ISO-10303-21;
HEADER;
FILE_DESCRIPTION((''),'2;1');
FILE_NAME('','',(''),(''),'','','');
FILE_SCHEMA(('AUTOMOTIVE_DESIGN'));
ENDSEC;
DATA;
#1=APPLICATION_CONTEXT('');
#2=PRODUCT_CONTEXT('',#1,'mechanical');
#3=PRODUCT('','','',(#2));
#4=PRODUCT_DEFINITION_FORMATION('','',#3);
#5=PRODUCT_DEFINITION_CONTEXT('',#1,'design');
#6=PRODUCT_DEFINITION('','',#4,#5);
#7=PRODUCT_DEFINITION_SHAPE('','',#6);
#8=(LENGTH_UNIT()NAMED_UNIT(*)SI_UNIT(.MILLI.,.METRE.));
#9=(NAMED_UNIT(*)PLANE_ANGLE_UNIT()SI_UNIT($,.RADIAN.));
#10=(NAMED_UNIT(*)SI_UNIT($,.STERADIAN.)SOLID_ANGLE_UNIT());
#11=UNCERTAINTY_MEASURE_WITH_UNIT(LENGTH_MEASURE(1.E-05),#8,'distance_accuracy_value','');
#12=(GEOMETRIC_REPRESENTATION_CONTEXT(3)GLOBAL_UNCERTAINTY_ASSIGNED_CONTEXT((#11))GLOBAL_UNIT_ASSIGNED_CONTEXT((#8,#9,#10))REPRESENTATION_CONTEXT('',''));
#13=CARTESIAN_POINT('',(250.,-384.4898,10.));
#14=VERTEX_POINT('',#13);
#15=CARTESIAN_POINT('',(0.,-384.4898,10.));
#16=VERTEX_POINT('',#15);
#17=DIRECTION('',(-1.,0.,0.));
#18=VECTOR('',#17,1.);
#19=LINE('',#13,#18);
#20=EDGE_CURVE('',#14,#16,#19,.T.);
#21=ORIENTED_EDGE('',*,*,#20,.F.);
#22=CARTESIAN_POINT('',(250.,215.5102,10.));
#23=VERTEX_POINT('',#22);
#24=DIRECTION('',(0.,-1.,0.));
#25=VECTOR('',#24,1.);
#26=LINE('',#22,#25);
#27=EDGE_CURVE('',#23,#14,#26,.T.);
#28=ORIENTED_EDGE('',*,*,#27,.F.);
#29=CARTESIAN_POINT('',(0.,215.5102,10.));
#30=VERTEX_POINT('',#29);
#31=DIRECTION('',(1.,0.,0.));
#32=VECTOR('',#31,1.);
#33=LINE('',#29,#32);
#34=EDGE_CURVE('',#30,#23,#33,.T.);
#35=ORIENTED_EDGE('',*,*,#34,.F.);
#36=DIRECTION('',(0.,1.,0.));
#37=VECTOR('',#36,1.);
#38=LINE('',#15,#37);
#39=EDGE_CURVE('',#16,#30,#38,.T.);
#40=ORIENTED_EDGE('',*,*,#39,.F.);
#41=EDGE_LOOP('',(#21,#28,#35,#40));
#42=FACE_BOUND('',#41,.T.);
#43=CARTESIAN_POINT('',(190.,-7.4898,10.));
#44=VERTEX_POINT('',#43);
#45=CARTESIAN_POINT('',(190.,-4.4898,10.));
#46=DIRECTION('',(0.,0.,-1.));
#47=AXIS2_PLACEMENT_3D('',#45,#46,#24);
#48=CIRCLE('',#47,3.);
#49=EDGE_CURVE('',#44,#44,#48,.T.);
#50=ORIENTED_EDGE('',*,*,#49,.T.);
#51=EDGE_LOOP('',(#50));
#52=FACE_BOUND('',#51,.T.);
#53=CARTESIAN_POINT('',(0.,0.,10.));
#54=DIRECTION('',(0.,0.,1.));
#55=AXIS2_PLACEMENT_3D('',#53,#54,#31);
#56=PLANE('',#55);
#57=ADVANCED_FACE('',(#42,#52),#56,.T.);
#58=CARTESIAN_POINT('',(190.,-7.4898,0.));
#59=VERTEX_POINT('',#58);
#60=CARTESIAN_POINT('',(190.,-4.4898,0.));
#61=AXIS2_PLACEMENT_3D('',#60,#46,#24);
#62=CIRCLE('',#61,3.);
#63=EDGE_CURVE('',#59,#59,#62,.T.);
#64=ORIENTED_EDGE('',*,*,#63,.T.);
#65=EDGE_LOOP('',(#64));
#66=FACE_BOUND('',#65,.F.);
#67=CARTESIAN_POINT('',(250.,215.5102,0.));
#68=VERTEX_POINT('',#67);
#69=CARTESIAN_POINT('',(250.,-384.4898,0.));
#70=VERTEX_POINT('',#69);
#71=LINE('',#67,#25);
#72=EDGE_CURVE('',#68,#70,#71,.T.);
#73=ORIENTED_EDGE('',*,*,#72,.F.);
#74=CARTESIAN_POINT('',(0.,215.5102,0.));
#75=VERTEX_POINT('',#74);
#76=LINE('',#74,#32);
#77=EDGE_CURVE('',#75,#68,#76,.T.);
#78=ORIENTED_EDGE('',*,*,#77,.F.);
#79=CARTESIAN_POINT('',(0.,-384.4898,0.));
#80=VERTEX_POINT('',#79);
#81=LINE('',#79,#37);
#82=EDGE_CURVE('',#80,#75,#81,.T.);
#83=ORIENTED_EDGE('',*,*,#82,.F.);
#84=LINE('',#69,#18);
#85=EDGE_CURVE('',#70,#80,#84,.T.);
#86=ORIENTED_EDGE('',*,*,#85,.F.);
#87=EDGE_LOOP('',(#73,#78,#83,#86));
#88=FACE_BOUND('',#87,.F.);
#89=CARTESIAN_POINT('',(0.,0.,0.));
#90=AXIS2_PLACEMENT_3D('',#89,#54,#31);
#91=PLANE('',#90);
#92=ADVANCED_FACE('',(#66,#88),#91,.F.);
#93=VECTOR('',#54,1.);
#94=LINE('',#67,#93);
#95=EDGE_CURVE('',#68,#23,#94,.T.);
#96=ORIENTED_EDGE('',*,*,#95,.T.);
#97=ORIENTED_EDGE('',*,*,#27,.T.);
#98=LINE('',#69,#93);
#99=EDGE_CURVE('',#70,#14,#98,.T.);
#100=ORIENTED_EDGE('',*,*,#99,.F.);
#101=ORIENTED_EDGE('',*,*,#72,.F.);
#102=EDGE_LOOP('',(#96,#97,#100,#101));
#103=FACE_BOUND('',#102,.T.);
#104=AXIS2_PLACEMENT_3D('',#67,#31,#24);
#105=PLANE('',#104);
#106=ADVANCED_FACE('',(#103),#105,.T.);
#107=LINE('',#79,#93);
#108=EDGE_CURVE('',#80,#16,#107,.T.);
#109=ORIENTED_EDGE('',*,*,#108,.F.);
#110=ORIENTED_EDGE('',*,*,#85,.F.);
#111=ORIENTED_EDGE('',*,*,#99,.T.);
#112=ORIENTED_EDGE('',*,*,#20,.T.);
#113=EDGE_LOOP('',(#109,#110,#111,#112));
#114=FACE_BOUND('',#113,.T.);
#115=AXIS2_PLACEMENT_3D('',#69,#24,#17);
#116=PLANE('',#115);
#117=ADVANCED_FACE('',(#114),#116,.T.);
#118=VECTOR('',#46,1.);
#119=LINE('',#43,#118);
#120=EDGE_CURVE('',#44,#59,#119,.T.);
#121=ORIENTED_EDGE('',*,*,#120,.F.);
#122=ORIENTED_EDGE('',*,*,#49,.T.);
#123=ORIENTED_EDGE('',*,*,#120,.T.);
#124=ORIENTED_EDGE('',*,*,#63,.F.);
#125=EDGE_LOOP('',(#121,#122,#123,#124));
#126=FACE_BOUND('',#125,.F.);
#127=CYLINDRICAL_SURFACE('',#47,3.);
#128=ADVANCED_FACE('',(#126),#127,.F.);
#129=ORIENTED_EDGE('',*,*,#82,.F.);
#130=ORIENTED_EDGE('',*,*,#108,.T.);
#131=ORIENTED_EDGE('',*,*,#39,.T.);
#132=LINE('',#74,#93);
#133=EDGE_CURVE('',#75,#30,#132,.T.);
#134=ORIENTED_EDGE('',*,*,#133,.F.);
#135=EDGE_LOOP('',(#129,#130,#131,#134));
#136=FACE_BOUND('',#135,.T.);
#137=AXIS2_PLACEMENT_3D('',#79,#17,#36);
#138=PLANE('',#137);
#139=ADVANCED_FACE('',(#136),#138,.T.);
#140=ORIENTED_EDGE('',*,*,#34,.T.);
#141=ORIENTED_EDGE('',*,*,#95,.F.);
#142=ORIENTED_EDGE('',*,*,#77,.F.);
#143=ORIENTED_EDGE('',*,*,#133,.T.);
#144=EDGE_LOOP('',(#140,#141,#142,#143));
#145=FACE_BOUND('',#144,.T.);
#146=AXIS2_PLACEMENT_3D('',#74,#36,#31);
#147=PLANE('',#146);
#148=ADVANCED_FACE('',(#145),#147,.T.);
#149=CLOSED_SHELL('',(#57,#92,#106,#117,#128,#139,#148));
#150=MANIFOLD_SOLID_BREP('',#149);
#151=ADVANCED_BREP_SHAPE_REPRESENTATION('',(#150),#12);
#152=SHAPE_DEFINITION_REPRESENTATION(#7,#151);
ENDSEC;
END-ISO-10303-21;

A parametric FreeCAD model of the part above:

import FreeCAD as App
import Part
import Sketcher


def add_polygon(sketch, points):
    """Adds a closed chain of lines whose ends are joined by coincident constraints."""
    first, n = sketch.GeometryCount, len(points)
    for a, b in zip(points, points[1:] + points[:1]):
        sketch.addGeometry(Part.LineSegment(App.Vector(*a, 0), App.Vector(*b, 0)), False)
    for i in range(n):
        sketch.addConstraint(Sketcher.Constraint("Coincident", first + i, 2, first + (i + 1) % n, 1))

doc = App.newDocument("Part")
body = doc.addObject("PartDesign::Body", "Body")

# Sketch on XY plane
sketch1 = doc.addObject("Sketcher::SketchObject", "Sketch")
body.addObject(sketch1)
sketch1.AttachmentSupport = (doc.XY_Plane, [""])
sketch1.MapMode = "FlatFace"
add_polygon(sketch1, [(250, 215.5102), (0, 215.5102), (0, -384.4898), (250, -384.4898)])  # lines 0-3
sketch1.addConstraint(Sketcher.Constraint("Horizontal", 0))
sketch1.addConstraint(Sketcher.Constraint("Vertical", 1))
sketch1.addConstraint(Sketcher.Constraint("Horizontal", 2))
sketch1.addConstraint(Sketcher.Constraint("Vertical", 3))
sketch1.addConstraint(Sketcher.Constraint("PointOnObject", 0, 2, -2))
sketch1.addConstraint(Sketcher.Constraint("DistanceX", 0, 2, 0, 1, 250.0))
sketch1.addConstraint(Sketcher.Constraint("DistanceY", 1, 2, 1, 1, 600.0))
sketch1.addConstraint(Sketcher.Constraint("DistanceY", -1, 1, 0, 2, 215.5102))
pad1 = doc.addObject("PartDesign::Pad", "Pad")
body.addObject(pad1)
pad1.Profile = sketch1
pad1.Length = 10

# Sketch on XY plane
sketch2 = doc.addObject("Sketcher::SketchObject", "Sketch001")
body.addObject(sketch2)
sketch2.AttachmentSupport = (doc.XY_Plane, [""])
sketch2.MapMode = "FlatFace"
sketch2.AttachmentOffset = App.Placement(App.Vector(0, 0, 10), App.Rotation())
sketch2.addGeometry(Part.Circle(App.Vector(190, -4.4898, 0), App.Vector(0, 0, 1), 3), False)
sketch2.addConstraint(Sketcher.Constraint("Diameter", 0, 6.0))
sketch2.addConstraint(Sketcher.Constraint("DistanceX", -1, 1, 0, 3, 190.0))
sketch2.addConstraint(Sketcher.Constraint("DistanceY", 0, 3, -1, 1, 4.4898))
doc.recompute()
hole = doc.addObject("PartDesign::Hole", "Hole")
body.addObject(hole)
hole.Profile = sketch2
hole.ThreadType = "None"
hole.Diameter = 6
hole.DepthType = "ThroughAll"

doc.recompute()
